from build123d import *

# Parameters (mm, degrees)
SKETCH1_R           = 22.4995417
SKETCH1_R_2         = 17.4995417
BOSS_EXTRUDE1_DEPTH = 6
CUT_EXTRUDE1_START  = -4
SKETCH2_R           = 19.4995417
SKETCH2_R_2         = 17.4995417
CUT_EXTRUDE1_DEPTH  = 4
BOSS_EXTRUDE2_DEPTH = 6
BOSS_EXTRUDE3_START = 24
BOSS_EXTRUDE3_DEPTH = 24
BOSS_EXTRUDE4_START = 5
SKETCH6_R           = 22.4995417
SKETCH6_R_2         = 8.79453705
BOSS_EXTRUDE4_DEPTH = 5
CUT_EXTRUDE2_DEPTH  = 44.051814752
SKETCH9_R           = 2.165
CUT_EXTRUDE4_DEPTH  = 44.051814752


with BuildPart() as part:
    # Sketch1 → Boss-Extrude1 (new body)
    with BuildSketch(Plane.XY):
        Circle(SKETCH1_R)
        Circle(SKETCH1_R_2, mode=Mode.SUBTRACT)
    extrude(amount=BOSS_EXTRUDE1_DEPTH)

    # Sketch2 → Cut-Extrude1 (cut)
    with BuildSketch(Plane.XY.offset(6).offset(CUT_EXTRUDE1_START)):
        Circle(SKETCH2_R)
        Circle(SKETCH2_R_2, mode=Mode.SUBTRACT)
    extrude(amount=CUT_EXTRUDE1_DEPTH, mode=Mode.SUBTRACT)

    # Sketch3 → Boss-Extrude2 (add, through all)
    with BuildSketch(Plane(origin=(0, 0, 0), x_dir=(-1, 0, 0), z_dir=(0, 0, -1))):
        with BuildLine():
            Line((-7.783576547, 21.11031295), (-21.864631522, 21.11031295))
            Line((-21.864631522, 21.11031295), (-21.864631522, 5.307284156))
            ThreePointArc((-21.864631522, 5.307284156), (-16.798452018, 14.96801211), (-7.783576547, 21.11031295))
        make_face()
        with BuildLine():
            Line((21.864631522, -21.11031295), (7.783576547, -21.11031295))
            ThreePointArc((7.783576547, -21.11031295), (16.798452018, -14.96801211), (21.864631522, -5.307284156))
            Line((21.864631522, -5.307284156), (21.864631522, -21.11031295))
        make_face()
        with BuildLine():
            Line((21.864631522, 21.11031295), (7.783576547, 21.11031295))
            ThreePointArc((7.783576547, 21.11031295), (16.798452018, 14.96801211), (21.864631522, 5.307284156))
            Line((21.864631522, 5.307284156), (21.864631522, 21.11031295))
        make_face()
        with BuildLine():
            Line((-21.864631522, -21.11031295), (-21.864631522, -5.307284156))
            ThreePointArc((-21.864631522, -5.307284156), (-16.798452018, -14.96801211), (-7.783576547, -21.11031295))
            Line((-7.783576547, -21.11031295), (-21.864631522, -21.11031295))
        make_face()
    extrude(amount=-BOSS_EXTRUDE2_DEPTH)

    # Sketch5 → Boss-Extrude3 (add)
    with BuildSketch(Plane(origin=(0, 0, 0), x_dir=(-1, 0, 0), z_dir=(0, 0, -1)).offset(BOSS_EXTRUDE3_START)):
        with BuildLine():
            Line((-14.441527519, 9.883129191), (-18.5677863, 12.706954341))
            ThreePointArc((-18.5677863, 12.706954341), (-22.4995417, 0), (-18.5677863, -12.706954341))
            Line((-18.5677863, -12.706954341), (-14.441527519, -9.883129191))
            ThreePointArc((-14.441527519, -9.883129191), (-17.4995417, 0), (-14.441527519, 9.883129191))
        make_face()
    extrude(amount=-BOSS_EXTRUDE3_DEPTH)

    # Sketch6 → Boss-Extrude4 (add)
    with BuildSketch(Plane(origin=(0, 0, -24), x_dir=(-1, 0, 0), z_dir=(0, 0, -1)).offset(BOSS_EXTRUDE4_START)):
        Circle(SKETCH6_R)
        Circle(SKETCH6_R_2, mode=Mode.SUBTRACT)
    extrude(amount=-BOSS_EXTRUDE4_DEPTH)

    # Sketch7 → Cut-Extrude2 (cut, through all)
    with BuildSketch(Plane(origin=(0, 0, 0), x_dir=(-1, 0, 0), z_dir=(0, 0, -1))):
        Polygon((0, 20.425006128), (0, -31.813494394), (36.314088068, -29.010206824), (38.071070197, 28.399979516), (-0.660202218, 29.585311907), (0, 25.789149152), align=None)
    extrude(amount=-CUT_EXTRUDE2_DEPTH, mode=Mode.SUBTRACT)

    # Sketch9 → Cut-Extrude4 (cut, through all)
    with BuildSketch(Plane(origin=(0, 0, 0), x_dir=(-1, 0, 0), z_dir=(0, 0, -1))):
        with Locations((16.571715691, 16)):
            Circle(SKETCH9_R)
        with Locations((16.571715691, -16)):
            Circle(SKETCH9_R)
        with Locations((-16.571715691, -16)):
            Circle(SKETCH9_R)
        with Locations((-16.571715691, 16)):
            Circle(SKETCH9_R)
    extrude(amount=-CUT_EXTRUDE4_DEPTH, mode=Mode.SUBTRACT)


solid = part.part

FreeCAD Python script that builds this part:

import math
import FreeCAD as App
import Part
import Sketcher
from FreeCAD import Vector

doc = App.newDocument("Part")
body = doc.addObject("PartDesign::Body", "Body")

sketch1 = body.newObject("Sketcher::SketchObject", "Sketch")
sketch1.AttachmentSupport = (doc.getObject("XY_Plane"), [""])
sketch1.MapMode = "FlatFace"
sketch1.addGeometry(Part.Circle(Vector(0, 0, 0), Vector(0, 0, 1), 22.499542), False)
sketch1.addGeometry(Part.Circle(Vector(0, 0, 0), Vector(0, 0, 1), 17.499542), False)
sketch1.addConstraint(Sketcher.Constraint("Coincident", 0, 3, -1, 1))
sketch1.addConstraint(Sketcher.Constraint("Coincident", 1, 3, -1, 1))
sketch1.addConstraint(Sketcher.Constraint("Diameter", 0, 44.999083))
sketch1.addConstraint(Sketcher.Constraint("Diameter", 1, 34.999083))
pad1 = body.newObject("PartDesign::Pad", "Pad")
pad1.Profile = sketch1
pad1.Length = 6

sketch2 = body.newObject("Sketcher::SketchObject", "Sketch001")
sketch2.AttachmentSupport = (doc.getObject("XY_Plane"), [""])
sketch2.MapMode = "FlatFace"
sketch2.AttachmentOffset = App.Placement(Vector(0, 0, 2), App.Rotation())
sketch2.addGeometry(Part.Circle(Vector(0, 0, 0), Vector(0, 0, 1), 19.499542), False)
sketch2.addGeometry(Part.Circle(Vector(0, 0, 0), Vector(0, 0, 1), 17.499542), False)
sketch2.addConstraint(Sketcher.Constraint("Coincident", 0, 3, -1, 1))
sketch2.addConstraint(Sketcher.Constraint("Coincident", 1, 3, -1, 1))
sketch2.addConstraint(Sketcher.Constraint("Diameter", 0, 38.999083))
sketch2.addConstraint(Sketcher.Constraint("Diameter", 1, 34.999083))
pocket1 = body.newObject("PartDesign::Pocket", "Pocket")
pocket1.Profile = sketch2
pocket1.Length = 4
pocket1.Reversed = True

sketch3 = body.newObject("Sketcher::SketchObject", "Sketch002")
sketch3.AttachmentSupport = (doc.getObject("XY_Plane"), [""])
sketch3.MapMode = "FlatFace"
sketch3.addGeometry(Part.LineSegment(Vector(7.783577, 21.110313, 0), Vector(21.864632, 21.110313, 0)), False)
sketch3.addGeometry(Part.LineSegment(Vector(21.864632, 21.110313, 0), Vector(21.864632, 5.307284, 0)), False)
sketch3.addGeometry(Part.ArcOfCircle(Part.Circle(Vector(0, 0, 0), Vector(0, 0, 1), 22.499542), math.radians(13.643743), math.radians(69.760582)), False)
sketch3.addGeometry(Part.LineSegment(Vector(-7.783577, -21.110313, 0), Vector(-21.864632, -21.110313, 0)), False)
sketch3.addGeometry(Part.LineSegment(Vector(-21.864632, -21.110313, 0), Vector(-21.864632, -5.307284, 0)), False)
sketch3.addGeometry(Part.ArcOfCircle(Part.Circle(Vector(0, 0, 0), Vector(0, 0, 1), 22.499542), math.radians(-166.356257), math.radians(-110.239418)), False)
sketch3.addGeometry(Part.LineSegment(Vector(-21.864632, 21.110313, 0), Vector(-7.783577, 21.110313, 0)), False)
sketch3.addGeometry(Part.ArcOfCircle(Part.Circle(Vector(0, 0, 0), Vector(0, 0, 1), 22.499542), math.radians(110.239418), math.radians(166.356257)), False)
sketch3.addGeometry(Part.LineSegment(Vector(-21.864632, 5.307284, 0), Vector(-21.864632, 21.110313, 0)), False)
sketch3.addGeometry(Part.LineSegment(Vector(21.864632, -5.307284, 0), Vector(21.864632, -21.110313, 0)), False)
sketch3.addGeometry(Part.LineSegment(Vector(21.864632, -21.110313, 0), Vector(7.783577, -21.110313, 0)), False)
sketch3.addGeometry(Part.ArcOfCircle(Part.Circle(Vector(0, 0, 0), Vector(0, 0, 1), 22.499542), math.radians(-69.760582), math.radians(-13.643743)), False)
sketch3.addConstraint(Sketcher.Constraint("Coincident", 0, 2, 1, 1))
sketch3.addConstraint(Sketcher.Constraint("Coincident", 1, 2, 2, 1))
sketch3.addConstraint(Sketcher.Constraint("Coincident", 2, 2, 0, 1))
sketch3.addConstraint(Sketcher.Constraint("Coincident", 3, 2, 4, 1))
sketch3.addConstraint(Sketcher.Constraint("Coincident", 4, 2, 5, 1))
sketch3.addConstraint(Sketcher.Constraint("Coincident", 5, 2, 3, 1))
sketch3.addConstraint(Sketcher.Constraint("Coincident", 6, 2, 7, 1))
sketch3.addConstraint(Sketcher.Constraint("Coincident", 7, 2, 8, 1))
sketch3.addConstraint(Sketcher.Constraint("Coincident", 8, 2, 6, 1))
sketch3.addConstraint(Sketcher.Constraint("Coincident", 9, 2, 10, 1))
sketch3.addConstraint(Sketcher.Constraint("Coincident", 10, 2, 11, 1))
sketch3.addConstraint(Sketcher.Constraint("Coincident", 11, 2, 9, 1))
sketch3.addConstraint(Sketcher.Constraint("Horizontal", 0))
sketch3.addConstraint(Sketcher.Constraint("Vertical", 1))
sketch3.addConstraint(Sketcher.Constraint("Horizontal", 3))
sketch3.addConstraint(Sketcher.Constraint("Vertical", 4))
sketch3.addConstraint(Sketcher.Constraint("Horizontal", 6))
sketch3.addConstraint(Sketcher.Constraint("Vertical", 8))
sketch3.addConstraint(Sketcher.Constraint("Vertical", 9))
sketch3.addConstraint(Sketcher.Constraint("Horizontal", 10))
sketch3.addConstraint(Sketcher.Constraint("Coincident", 2, 3, -1, 1))
sketch3.addConstraint(Sketcher.Constraint("Coincident", 5, 3, -1, 1))
sketch3.addConstraint(Sketcher.Constraint("Coincident", 7, 3, -1, 1))
sketch3.addConstraint(Sketcher.Constraint("Coincident", 11, 3, -1, 1))
sketch3.addConstraint(Sketcher.Constraint("Equal", 2, 5))
sketch3.addConstraint(Sketcher.Constraint("Equal", 5, 7))
sketch3.addConstraint(Sketcher.Constraint("Equal", 7, 11))
sketch3.addConstraint(Sketcher.Constraint("Symmetric", 0, 2, 3, 2, -1, 1))
sketch3.addConstraint(Sketcher.Constraint("Symmetric", 8, 2, 9, 2, -1, 1))
sketch3.addConstraint(Sketcher.Constraint("Symmetric", 0, 2, 8, 2, -2))
sketch3.addConstraint(Sketcher.Constraint("Radius", 2, 22.499542))
sketch3.addConstraint(Sketcher.Constraint("DistanceY", 1, 2, 1, 1, 15.803029))
sketch3.addConstraint(Sketcher.Constraint("DistanceX", 0, 1, 0, 2, 14.081055))
pad2 = body.newObject("PartDesign::Pad", "Pad001")
pad2.Profile = sketch3
pad2.Length = 6

sketch4 = body.newObject("Sketcher::SketchObject", "Sketch003")
sketch4.AttachmentSupport = (doc.getObject("XY_Plane"), [""])
sketch4.MapMode = "FlatFace"
sketch4.AttachmentOffset = App.Placement(Vector(0, 0, -24), App.Rotation())
sketch4.addGeometry(Part.LineSegment(Vector(14.441528, 9.883129, 0), Vector(18.567786, 12.706954, 0)), False)
sketch4.addGeometry(Part.ArcOfCircle(Part.Circle(Vector(0, 0, 0), Vector(0, 0, 1), 22.499542), math.radians(-34.385976), math.radians(34.385976)), False)
sketch4.addGeometry(Part.LineSegment(Vector(18.567786, -12.706954, 0), Vector(14.441528, -9.883129, 0)), False)
sketch4.addGeometry(Part.ArcOfCircle(Part.Circle(Vector(0, 0, 0), Vector(0, 0, 1), 17.499542), math.radians(-34.385976), math.radians(34.385976)), False)
sketch4.addConstraint(Sketcher.Constraint("Coincident", 0, 2, 1, 2))
sketch4.addConstraint(Sketcher.Constraint("Coincident", 1, 1, 2, 1))
sketch4.addConstraint(Sketcher.Constraint("Coincident", 2, 2, 3, 1))
sketch4.addConstraint(Sketcher.Constraint("Coincident", 3, 2, 0, 1))
sketch4.addConstraint(Sketcher.Constraint("Coincident", 1, 3, -1, 1))
sketch4.addConstraint(Sketcher.Constraint("Coincident", 3, 3, -1, 1))
sketch4.addConstraint(Sketcher.Constraint("Vertical", 0, 2, 1, 1))
sketch4.addConstraint(Sketcher.Constraint("Vertical", 2, 2, 3, 2))
sketch4.addConstraint(Sketcher.Constraint("Distance", 0, 5.0))
sketch4.addConstraint(Sketcher.Constraint("Radius", 1, 22.499542))
sketch4.addConstraint(Sketcher.Constraint("DistanceY", 2, 2, -1, 1, 9.883129))
sketch4.addConstraint(Sketcher.Constraint("DistanceY", 1, 1, 0, 2, 25.413909))
pad3 = body.newObject("PartDesign::Pad", "Pad002")
pad3.Profile = sketch4
pad3.Length = 24

sketch5 = body.newObject("Sketcher::SketchObject", "Sketch004")
sketch5.AttachmentSupport = (doc.getObject("XY_Plane"), [""])
sketch5.MapMode = "FlatFace"
sketch5.AttachmentOffset = App.Placement(Vector(0, 0, -29), App.Rotation())
sketch5.addGeometry(Part.Circle(Vector(0, 0, 0), Vector(0, 0, 1), 22.499542), False)
sketch5.addGeometry(Part.Circle(Vector(0, 0, 0), Vector(0, 0, 1), 8.794537), False)
sketch5.addConstraint(Sketcher.Constraint("Coincident", 0, 3, -1, 1))
sketch5.addConstraint(Sketcher.Constraint("Coincident", 1, 3, -1, 1))
sketch5.addConstraint(Sketcher.Constraint("Diameter", 0, 44.999083))
sketch5.addConstraint(Sketcher.Constraint("Diameter", 1, 17.589074))
pad4 = body.newObject("PartDesign::Pad", "Pad003")
pad4.Profile = sketch5
pad4.Length = 5

sketch6 = body.newObject("Sketcher::SketchObject", "Sketch005")
sketch6.AttachmentSupport = (doc.getObject("XY_Plane"), [""])
sketch6.MapMode = "FlatFace"
sketch6.addGeometry(Part.LineSegment(Vector(0, -31.813494, 0), Vector(-36.314088, -29.010207, 0)), False)
sketch6.addGeometry(Part.LineSegment(Vector(-36.314088, -29.010207, 0), Vector(-38.07107, 28.39998, 0)), False)
sketch6.addGeometry(Part.LineSegment(Vector(-38.07107, 28.39998, 0), Vector(0.660202, 29.585312, 0)), False)
sketch6.addGeometry(Part.LineSegment(Vector(0.660202, 29.585312, 0), Vector(0, 25.789149, 0)), False)
sketch6.addGeometry(Part.LineSegment(Vector(0, 25.789149, 0), Vector(0, -31.813494, 0)), False)
sketch6.addConstraint(Sketcher.Constraint("Coincident", 0, 2, 1, 1))
sketch6.addConstraint(Sketcher.Constraint("Coincident", 1, 2, 2, 1))
sketch6.addConstraint(Sketcher.Constraint("Coincident", 2, 2, 3, 1))
sketch6.addConstraint(Sketcher.Constraint("Coincident", 3, 2, 4, 1))
sketch6.addConstraint(Sketcher.Constraint("Coincident", 4, 2, 0, 1))
sketch6.addConstraint(Sketcher.Constraint("Vertical", 4))
sketch6.addConstraint(Sketcher.Constraint("PointOnObject", 3, 2, -2))
sketch6.addConstraint(Sketcher.Constraint("Perpendicular", 1, 2))
sketch6.addConstraint(Sketcher.Constraint("Distance", 0, 36.422128))
sketch6.addConstraint(Sketcher.Constraint("DistanceY", 4, 2, 4, 1, 57.602644))
sketch6.addConstraint(Sketcher.Constraint("DistanceX", 0, 2, -1, 1, 36.314088))
sketch6.addConstraint(Sketcher.Constraint("DistanceX", 1, 2, -1, 1, 38.07107))
sketch6.addConstraint(Sketcher.Constraint("DistanceY", -1, 1, 1, 2, 28.39998))
sketch6.addConstraint(Sketcher.Constraint("DistanceY", -1, 1, 2, 2, 29.585312))
sketch6.addConstraint(Sketcher.Constraint("DistanceY", -1, 1, 3, 2, 25.789149))
pocket2 = body.newObject("PartDesign::Pocket", "Pocket001")
pocket2.Profile = sketch6
pocket2.Type = "ThroughAll"
pocket2.Reversed = True

sketch7 = body.newObject("Sketcher::SketchObject", "Sketch006")
sketch7.AttachmentSupport = (doc.getObject("XY_Plane"), [""])
sketch7.MapMode = "FlatFace"
sketch7.addGeometry(Part.Circle(Vector(-16.571716, 16, 0), Vector(0, 0, 1), 2.165), False)
sketch7.addGeometry(Part.Circle(Vector(-16.571716, -16, 0), Vector(0, 0, 1), 2.165), False)
sketch7.addGeometry(Part.Circle(Vector(16.571716, -16, 0), Vector(0, 0, 1), 2.165), False)
sketch7.addGeometry(Part.Circle(Vector(16.571716, 16, 0), Vector(0, 0, 1), 2.165), False)
sketch7.addConstraint(Sketcher.Constraint("Equal", 0, 1))
sketch7.addConstraint(Sketcher.Constraint("Equal", 1, 2))
sketch7.addConstraint(Sketcher.Constraint("Equal", 2, 3))
sketch7.addConstraint(Sketcher.Constraint("Symmetric", 0, 3, 2, 3, -1, 1))
sketch7.addConstraint(Sketcher.Constraint("Symmetric", 1, 3, 3, 3, -1, 1))
sketch7.addConstraint(Sketcher.Constraint("Symmetric", 1, 3, 2, 3, -2))
sketch7.addConstraint(Sketcher.Constraint("Diameter", 0, 4.33))
sketch7.addConstraint(Sketcher.Constraint("DistanceY", -1, 1, 0, 3, 16.0))
sketch7.addConstraint(Sketcher.Constraint("DistanceX", 1, 3, 2, 3, 33.143431))
pocket3 = body.newObject("PartDesign::Pocket", "Pocket002")
pocket3.Profile = sketch7
pocket3.Type = "ThroughAll"
pocket3.Reversed = True

doc.recompute()
